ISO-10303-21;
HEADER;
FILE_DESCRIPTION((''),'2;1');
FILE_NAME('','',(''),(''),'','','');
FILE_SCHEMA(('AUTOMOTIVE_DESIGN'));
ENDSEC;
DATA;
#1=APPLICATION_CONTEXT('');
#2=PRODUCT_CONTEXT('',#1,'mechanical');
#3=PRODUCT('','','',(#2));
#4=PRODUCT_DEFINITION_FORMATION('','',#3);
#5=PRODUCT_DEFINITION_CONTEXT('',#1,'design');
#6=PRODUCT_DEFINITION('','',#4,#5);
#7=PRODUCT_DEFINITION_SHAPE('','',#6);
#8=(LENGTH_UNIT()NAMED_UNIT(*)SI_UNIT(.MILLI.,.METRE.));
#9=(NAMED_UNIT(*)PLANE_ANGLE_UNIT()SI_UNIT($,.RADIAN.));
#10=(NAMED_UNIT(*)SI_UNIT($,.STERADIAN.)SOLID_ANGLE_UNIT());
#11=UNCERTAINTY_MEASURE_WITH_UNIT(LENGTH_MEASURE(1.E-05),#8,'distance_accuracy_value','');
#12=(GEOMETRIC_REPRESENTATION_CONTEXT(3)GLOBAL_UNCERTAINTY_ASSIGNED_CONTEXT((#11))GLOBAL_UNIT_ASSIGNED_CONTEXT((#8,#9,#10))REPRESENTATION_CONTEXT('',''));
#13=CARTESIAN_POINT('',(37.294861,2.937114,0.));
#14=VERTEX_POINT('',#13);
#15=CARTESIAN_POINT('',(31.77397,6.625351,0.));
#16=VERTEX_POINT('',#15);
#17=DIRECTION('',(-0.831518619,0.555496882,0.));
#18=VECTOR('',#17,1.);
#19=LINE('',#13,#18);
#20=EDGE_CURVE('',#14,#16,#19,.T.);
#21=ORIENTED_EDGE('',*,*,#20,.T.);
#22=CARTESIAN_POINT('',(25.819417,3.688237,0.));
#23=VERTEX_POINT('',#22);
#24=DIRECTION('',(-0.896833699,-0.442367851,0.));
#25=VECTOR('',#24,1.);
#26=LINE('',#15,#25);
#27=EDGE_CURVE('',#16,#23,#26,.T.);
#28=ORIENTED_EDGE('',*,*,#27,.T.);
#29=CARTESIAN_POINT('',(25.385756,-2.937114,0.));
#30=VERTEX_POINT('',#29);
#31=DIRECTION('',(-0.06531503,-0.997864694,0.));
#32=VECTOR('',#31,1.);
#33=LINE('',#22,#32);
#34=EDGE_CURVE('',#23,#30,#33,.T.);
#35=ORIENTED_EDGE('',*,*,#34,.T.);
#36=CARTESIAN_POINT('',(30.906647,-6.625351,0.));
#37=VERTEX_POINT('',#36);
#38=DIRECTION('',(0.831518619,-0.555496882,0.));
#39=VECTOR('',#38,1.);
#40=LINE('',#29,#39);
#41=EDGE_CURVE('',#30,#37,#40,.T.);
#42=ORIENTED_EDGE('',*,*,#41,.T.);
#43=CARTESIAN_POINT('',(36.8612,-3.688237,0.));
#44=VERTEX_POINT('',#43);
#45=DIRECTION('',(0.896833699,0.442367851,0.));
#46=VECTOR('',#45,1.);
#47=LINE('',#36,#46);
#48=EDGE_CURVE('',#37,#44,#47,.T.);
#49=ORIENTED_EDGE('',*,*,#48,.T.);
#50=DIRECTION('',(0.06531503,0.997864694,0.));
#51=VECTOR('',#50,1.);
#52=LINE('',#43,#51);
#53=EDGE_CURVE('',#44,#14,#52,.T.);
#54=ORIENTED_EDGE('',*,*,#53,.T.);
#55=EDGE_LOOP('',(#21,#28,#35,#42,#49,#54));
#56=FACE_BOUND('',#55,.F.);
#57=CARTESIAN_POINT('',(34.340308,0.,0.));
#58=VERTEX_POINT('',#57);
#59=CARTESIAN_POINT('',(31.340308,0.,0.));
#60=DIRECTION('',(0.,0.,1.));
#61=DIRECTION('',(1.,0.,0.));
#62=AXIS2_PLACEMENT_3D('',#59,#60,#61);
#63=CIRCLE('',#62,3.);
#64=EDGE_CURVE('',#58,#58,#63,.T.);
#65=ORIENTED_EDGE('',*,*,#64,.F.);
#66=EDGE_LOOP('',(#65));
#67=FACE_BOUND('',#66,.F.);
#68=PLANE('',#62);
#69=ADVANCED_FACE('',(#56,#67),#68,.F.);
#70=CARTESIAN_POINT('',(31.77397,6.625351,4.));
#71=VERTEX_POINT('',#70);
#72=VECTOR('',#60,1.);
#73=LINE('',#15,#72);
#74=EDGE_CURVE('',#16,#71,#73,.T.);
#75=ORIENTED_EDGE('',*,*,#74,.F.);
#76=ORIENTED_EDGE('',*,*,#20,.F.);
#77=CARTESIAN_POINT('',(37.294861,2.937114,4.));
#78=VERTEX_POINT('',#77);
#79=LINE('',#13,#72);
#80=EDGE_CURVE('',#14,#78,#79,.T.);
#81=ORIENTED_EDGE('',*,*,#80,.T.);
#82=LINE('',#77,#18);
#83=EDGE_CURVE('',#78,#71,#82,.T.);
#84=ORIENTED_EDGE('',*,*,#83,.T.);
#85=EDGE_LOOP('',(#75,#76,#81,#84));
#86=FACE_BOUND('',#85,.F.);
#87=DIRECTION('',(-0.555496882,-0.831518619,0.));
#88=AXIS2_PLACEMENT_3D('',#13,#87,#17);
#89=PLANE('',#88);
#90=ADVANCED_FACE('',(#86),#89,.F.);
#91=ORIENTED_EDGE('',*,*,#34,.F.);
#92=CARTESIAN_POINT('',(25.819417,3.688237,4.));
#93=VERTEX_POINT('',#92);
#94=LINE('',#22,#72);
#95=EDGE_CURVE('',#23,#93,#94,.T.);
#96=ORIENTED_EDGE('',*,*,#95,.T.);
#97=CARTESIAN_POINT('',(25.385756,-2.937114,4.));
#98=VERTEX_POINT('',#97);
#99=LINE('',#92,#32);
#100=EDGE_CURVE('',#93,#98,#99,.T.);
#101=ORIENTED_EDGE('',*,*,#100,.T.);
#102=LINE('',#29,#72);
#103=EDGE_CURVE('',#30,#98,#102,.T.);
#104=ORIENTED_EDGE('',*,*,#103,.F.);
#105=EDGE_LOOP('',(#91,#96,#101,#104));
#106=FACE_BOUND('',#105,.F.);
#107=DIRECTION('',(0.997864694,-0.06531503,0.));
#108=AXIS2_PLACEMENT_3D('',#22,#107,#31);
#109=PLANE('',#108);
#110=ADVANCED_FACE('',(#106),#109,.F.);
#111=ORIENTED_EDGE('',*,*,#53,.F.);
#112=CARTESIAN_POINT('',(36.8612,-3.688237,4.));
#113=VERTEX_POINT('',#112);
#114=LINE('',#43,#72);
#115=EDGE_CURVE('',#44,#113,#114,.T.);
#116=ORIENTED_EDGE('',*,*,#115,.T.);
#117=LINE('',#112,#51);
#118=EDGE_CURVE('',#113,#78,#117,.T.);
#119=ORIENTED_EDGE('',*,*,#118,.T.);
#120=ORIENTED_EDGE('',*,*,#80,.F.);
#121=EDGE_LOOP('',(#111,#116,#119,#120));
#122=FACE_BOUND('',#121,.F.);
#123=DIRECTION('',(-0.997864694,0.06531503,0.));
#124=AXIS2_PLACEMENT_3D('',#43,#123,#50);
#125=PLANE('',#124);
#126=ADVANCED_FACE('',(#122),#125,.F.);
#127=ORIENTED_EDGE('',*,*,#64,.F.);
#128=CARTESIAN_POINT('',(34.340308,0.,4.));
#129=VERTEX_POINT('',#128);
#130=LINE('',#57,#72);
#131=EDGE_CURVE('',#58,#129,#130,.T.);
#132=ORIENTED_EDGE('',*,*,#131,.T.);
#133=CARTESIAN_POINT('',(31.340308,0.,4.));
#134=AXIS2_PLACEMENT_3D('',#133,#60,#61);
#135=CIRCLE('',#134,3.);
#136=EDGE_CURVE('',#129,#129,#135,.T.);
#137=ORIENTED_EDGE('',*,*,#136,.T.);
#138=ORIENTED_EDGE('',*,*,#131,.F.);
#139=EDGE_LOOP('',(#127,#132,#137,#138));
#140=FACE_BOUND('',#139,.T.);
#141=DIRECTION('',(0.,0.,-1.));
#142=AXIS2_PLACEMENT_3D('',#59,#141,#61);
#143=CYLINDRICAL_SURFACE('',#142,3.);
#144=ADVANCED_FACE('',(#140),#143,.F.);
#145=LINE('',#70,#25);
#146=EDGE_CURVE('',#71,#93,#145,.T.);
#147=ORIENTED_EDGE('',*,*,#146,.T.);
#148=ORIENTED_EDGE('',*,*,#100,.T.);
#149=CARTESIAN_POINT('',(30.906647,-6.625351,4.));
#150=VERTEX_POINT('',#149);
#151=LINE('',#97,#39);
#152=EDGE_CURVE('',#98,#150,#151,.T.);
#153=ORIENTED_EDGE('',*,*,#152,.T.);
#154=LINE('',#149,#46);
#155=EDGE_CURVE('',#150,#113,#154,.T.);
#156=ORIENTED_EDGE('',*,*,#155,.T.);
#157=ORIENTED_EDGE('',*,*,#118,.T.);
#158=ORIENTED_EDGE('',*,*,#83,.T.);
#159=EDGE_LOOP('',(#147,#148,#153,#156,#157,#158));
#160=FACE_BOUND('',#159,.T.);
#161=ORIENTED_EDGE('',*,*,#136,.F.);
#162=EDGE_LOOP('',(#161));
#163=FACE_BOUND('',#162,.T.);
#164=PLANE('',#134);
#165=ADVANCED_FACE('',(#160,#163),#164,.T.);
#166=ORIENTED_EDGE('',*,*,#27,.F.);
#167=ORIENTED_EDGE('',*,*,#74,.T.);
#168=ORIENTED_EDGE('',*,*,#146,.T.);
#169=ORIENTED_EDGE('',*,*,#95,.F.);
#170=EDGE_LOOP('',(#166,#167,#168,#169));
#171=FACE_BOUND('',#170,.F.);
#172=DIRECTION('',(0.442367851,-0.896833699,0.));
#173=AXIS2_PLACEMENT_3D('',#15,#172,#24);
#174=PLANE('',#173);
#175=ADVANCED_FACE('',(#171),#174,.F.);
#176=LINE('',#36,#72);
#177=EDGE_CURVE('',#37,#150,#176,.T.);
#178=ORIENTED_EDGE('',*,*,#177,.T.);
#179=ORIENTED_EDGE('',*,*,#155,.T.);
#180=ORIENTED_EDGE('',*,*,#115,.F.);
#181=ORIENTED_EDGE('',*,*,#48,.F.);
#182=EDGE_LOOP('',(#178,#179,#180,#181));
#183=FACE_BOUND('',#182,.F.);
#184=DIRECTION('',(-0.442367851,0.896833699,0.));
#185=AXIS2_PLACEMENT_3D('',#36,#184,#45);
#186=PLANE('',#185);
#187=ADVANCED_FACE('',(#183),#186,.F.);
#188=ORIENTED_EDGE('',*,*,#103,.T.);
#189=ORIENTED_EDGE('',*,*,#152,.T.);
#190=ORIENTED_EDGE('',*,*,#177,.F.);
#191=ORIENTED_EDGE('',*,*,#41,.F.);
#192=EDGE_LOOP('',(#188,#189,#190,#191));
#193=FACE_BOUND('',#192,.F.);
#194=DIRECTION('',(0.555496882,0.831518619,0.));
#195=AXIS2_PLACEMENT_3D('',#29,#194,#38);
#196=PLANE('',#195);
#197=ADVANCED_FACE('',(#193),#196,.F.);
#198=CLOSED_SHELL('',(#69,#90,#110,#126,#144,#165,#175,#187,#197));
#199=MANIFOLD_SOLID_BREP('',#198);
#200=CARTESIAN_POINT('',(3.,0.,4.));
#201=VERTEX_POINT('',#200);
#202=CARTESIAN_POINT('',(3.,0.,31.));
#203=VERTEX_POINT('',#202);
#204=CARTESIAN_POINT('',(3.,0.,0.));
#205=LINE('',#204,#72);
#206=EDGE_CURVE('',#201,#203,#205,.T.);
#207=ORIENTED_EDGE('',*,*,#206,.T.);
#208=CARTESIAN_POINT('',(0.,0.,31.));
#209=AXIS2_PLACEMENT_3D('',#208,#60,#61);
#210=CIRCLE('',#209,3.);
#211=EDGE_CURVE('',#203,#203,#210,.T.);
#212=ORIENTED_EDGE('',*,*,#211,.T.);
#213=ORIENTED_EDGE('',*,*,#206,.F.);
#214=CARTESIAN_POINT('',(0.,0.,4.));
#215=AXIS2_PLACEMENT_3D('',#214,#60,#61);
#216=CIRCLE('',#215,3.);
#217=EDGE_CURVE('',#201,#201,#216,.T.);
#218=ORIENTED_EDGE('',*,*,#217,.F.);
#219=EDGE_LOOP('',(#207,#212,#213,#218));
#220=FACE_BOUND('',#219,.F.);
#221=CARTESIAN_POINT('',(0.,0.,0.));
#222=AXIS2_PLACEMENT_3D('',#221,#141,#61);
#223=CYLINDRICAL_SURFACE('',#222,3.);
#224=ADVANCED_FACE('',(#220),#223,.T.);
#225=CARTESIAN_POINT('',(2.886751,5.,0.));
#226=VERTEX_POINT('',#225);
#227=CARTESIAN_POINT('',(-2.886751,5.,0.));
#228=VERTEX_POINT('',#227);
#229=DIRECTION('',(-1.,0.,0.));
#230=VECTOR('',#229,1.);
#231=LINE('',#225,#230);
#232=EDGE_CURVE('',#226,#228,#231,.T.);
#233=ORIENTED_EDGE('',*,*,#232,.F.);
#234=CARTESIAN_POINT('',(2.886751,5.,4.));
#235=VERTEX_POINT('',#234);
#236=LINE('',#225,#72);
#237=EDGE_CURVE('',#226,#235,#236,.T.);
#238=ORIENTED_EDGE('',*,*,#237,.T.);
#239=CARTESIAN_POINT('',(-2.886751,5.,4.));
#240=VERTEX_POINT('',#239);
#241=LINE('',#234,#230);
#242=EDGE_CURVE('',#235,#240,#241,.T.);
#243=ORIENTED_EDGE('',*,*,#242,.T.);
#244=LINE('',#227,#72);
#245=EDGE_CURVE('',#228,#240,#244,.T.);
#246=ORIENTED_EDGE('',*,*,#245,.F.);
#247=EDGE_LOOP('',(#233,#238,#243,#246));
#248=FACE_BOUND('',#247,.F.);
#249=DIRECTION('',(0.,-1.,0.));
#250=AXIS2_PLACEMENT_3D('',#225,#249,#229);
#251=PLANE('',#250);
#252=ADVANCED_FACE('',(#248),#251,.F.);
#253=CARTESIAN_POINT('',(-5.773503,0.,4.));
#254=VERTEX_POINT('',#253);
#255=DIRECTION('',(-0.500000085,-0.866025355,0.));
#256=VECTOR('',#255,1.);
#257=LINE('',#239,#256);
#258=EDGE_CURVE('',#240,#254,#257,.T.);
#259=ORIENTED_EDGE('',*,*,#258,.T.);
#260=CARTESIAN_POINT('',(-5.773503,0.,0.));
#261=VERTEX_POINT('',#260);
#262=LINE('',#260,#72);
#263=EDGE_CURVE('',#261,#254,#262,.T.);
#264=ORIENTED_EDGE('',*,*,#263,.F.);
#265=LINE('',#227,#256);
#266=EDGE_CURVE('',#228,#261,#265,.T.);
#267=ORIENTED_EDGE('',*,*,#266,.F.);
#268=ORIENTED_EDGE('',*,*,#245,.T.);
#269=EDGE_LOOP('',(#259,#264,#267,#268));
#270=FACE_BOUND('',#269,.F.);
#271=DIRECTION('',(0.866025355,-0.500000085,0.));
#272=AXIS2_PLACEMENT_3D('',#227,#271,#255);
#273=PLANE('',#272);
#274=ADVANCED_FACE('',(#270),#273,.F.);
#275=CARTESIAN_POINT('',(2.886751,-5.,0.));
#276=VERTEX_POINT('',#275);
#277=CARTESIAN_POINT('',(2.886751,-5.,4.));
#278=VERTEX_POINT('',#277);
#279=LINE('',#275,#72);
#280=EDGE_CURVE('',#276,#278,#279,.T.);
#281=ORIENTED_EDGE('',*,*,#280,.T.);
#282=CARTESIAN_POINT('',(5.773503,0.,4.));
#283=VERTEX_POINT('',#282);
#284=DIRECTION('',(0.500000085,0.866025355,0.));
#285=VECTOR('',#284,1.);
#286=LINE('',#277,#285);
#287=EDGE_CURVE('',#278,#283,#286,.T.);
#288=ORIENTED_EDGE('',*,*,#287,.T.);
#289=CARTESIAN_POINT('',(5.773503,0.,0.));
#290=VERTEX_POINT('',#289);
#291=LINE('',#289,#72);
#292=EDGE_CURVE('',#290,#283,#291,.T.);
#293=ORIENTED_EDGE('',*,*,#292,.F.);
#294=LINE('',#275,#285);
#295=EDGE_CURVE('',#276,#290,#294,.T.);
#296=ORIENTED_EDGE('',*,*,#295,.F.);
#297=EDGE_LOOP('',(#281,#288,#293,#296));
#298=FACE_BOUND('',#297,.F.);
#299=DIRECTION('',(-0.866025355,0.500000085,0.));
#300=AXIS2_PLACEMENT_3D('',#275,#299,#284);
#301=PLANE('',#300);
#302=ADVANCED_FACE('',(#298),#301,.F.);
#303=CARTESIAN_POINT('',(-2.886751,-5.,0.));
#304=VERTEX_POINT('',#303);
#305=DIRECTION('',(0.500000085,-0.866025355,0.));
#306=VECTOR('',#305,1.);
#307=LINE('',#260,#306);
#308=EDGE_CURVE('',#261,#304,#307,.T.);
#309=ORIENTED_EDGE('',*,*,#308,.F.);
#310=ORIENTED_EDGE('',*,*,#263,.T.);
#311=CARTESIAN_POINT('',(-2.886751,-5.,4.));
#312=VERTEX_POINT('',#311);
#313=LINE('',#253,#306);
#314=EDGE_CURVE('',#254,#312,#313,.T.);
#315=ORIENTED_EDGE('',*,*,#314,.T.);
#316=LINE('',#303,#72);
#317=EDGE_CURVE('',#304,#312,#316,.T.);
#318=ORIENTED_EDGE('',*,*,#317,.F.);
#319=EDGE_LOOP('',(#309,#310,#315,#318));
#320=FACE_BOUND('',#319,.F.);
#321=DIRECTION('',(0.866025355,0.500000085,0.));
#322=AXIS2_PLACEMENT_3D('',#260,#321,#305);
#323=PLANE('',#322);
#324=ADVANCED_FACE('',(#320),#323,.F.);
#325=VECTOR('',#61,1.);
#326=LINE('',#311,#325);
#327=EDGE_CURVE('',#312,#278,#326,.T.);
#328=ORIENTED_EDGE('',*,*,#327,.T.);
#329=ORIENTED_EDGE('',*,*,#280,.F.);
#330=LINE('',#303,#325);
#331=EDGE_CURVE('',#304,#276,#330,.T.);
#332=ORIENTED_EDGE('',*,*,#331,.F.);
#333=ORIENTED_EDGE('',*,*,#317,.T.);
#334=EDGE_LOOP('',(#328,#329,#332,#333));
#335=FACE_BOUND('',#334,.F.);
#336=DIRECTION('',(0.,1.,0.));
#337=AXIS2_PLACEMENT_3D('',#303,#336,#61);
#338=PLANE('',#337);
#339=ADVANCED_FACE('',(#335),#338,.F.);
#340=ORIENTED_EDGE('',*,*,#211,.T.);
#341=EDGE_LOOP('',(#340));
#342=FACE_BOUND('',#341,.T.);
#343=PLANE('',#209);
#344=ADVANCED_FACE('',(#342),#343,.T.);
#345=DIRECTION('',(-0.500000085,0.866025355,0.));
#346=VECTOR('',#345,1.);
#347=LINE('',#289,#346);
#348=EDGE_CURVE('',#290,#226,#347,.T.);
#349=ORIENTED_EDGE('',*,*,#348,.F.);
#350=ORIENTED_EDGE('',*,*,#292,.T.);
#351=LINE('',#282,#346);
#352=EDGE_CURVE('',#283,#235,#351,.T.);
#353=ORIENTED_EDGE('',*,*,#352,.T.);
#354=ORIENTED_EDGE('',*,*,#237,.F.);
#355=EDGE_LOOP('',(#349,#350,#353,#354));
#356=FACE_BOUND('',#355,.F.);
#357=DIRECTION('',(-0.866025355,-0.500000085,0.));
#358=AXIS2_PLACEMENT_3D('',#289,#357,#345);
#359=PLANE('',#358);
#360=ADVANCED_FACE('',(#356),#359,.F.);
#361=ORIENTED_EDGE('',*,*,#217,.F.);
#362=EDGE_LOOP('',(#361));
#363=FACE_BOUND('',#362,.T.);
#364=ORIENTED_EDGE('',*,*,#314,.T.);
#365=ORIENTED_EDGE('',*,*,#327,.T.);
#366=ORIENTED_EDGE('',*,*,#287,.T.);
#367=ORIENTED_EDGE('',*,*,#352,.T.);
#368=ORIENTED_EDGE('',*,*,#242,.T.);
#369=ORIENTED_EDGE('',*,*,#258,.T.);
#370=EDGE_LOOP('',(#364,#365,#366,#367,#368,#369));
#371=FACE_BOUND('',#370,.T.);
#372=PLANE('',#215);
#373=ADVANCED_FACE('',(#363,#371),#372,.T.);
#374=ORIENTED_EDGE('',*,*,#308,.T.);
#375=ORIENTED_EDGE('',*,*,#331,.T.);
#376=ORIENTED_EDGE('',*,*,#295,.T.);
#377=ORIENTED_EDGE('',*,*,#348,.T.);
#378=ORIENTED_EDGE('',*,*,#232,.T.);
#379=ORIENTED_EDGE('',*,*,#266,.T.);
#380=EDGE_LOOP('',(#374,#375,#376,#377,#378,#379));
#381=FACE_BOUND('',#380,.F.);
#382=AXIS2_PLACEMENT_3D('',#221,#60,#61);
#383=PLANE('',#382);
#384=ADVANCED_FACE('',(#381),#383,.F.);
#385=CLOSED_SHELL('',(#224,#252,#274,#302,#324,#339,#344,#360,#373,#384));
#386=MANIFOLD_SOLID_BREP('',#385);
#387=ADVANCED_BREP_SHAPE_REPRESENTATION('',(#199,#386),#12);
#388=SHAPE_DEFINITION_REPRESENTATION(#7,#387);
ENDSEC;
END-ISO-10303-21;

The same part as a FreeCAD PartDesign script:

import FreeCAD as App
import Part
import Sketcher
Q = App.Units.Quantity

doc = App.newDocument("Part")
body = doc.addObject("PartDesign::Body", "Body")
body.AllowCompound = True

# Sketch on XY plane
sketch1 = body.newObject("Sketcher::SketchObject", "Sketch")
sketch1.AttachmentSupport = (doc.getObject("XY_Plane"), [""])
sketch1.MapMode = "FlatFace"
sketch1.addGeometry(Part.Circle(App.Vector(0, 0, 0), App.Vector(0, 0, 1), 3), False)
sketch1.addConstraint(Sketcher.Constraint("Coincident", 0, 3, -1, 1))
sketch1.addConstraint(Sketcher.Constraint("Diameter", 0, Q("6 mm")))
pad1 = body.newObject("PartDesign::Pad", "Pad")
pad1.Profile = sketch1
pad1.Length = 31

# Sketch on XY plane
sketch2 = body.newObject("Sketcher::SketchObject", "Sketch001")
sketch2.AttachmentSupport = (doc.getObject("XY_Plane"), [""])
sketch2.MapMode = "FlatFace"
sketch2.addGeometry(Part.LineSegment(App.Vector(2.9, 5, 0), App.Vector(-2.9, 5, 0)), False)
sketch2.addGeometry(Part.LineSegment(App.Vector(-2.9, 5, 0), App.Vector(-5.8, 0, 0)), False)
sketch2.addGeometry(Part.LineSegment(App.Vector(-5.8, 0, 0), App.Vector(-2.9, -5, 0)), False)
sketch2.addGeometry(Part.LineSegment(App.Vector(-2.9, -5, 0), App.Vector(2.9, -5, 0)), False)
sketch2.addGeometry(Part.LineSegment(App.Vector(2.9, -5, 0), App.Vector(5.8, 0, 0)), False)
sketch2.addGeometry(Part.LineSegment(App.Vector(5.8, 0, 0), App.Vector(2.9, 5, 0)), False)
sketch2.addGeometry(Part.Circle(App.Vector(0, 0, 0), App.Vector(0, 0, 1), 3), False)
sketch2.addConstraint(Sketcher.Constraint("Coincident", 0, 2, 1, 1))
sketch2.addConstraint(Sketcher.Constraint("Coincident", 1, 2, 2, 1))
sketch2.addConstraint(Sketcher.Constraint("Coincident", 2, 2, 3, 1))
sketch2.addConstraint(Sketcher.Constraint("Coincident", 3, 2, 4, 1))
sketch2.addConstraint(Sketcher.Constraint("Coincident", 4, 2, 5, 1))
sketch2.addConstraint(Sketcher.Constraint("Coincident", 5, 2, 0, 1))
sketch2.addConstraint(Sketcher.Constraint("Horizontal", 0))
sketch2.addConstraint(Sketcher.Constraint("Horizontal", 3))
sketch2.addConstraint(Sketcher.Constraint("Coincident", 6, 3, -1, 1))
sketch2.addConstraint(Sketcher.Constraint("Symmetric", 0, 2, 3, 2, -1, 1))
sketch2.addConstraint(Sketcher.Constraint("Symmetric", 1, 2, 4, 2, -1, 1))
sketch2.addConstraint(Sketcher.Constraint("PointOnObject", 1, 2, -1))
sketch2.addConstraint(Sketcher.Constraint("Parallel", 2, 5))
sketch2.addConstraint(Sketcher.Constraint("Vertical", 0, 2, 2, 2))
sketch2.addConstraint(Sketcher.Constraint("Diameter", 6, Q("6 mm")))
sketch2.addConstraint(Sketcher.Constraint("Angle", 1, Q("-120.000006 deg")))
sketch2.addConstraint(Sketcher.Constraint("DistanceY", -1, 1, 0, 2, Q("5 mm")))
sketch2.addConstraint(Sketcher.Constraint("DistanceX", 0, 2, 0, 1, Q("5.773502 mm")))
pad2 = body.newObject("PartDesign::Pad", "Pad001")
pad2.Profile = sketch2
pad2.Length = 4

# Sketch on XY plane
sketch3 = body.newObject("Sketcher::SketchObject", "Sketch002")
sketch3.AttachmentSupport = (doc.getObject("XY_Plane"), [""])
sketch3.MapMode = "FlatFace"
sketch3.addGeometry(Part.LineSegment(App.Vector(2.9, 5, 0), App.Vector(-2.9, 5, 0)), False)
sketch3.addGeometry(Part.LineSegment(App.Vector(-2.9, 5, 0), App.Vector(-5.8, 0, 0)), False)
sketch3.addGeometry(Part.LineSegment(App.Vector(-5.8, 0, 0), App.Vector(-2.9, -5, 0)), False)
sketch3.addGeometry(Part.LineSegment(App.Vector(-2.9, -5, 0), App.Vector(2.9, -5, 0)), False)
sketch3.addGeometry(Part.LineSegment(App.Vector(2.9, -5, 0), App.Vector(5.8, 0, 0)), False)
sketch3.addGeometry(Part.LineSegment(App.Vector(5.8, 0, 0), App.Vector(2.9, 5, 0)), False)
sketch3.addGeometry(Part.Circle(App.Vector(0, 0, 0), App.Vector(0, 0, 1), 3), False)
sketch3.addGeometry(Part.LineSegment(App.Vector(37.3, 2.9, 0), App.Vector(31.8, 6.6, 0)), False)
sketch3.addGeometry(Part.LineSegment(App.Vector(31.8, 6.6, 0), App.Vector(25.8, 3.7, 0)), False)
sketch3.addGeometry(Part.LineSegment(App.Vector(25.8, 3.7, 0), App.Vector(25.4, -2.9, 0)), False)
sketch3.addGeometry(Part.LineSegment(App.Vector(25.4, -2.9, 0), App.Vector(30.9, -6.6, 0)), False)
sketch3.addGeometry(Part.LineSegment(App.Vector(30.9, -6.6, 0), App.Vector(36.9, -3.7, 0)), False)
sketch3.addGeometry(Part.LineSegment(App.Vector(36.9, -3.7, 0), App.Vector(37.3, 2.9, 0)), False)
sketch3.addGeometry(Part.Circle(App.Vector(31.3, 0, 0), App.Vector(0, 0, 1), 3), False)
sketch3.addConstraint(Sketcher.Constraint("Coincident", 0, 2, 1, 1))
sketch3.addConstraint(Sketcher.Constraint("Coincident", 1, 2, 2, 1))
sketch3.addConstraint(Sketcher.Constraint("Coincident", 2, 2, 3, 1))
sketch3.addConstraint(Sketcher.Constraint("Coincident", 3, 2, 4, 1))
sketch3.addConstraint(Sketcher.Constraint("Coincident", 4, 2, 5, 1))
sketch3.addConstraint(Sketcher.Constraint("Coincident", 5, 2, 0, 1))
sketch3.addConstraint(Sketcher.Constraint("Coincident", 7, 2, 8, 1))
sketch3.addConstraint(Sketcher.Constraint("Coincident", 8, 2, 9, 1))
sketch3.addConstraint(Sketcher.Constraint("Coincident", 9, 2, 10, 1))
sketch3.addConstraint(Sketcher.Constraint("Coincident", 10, 2, 11, 1))
sketch3.addConstraint(Sketcher.Constraint("Coincident", 11, 2, 12, 1))
sketch3.addConstraint(Sketcher.Constraint("Coincident", 12, 2, 7, 1))
sketch3.addConstraint(Sketcher.Constraint("Horizontal", 0))
sketch3.addConstraint(Sketcher.Constraint("Horizontal", 3))
sketch3.addConstraint(Sketcher.Constraint("Coincident", 6, 3, -1, 1))
sketch3.addConstraint(Sketcher.Constraint("Equal", 6, 13))
sketch3.addConstraint(Sketcher.Constraint("Symmetric", 0, 2, 3, 2, -1, 1))
sketch3.addConstraint(Sketcher.Constraint("Symmetric", 1, 2, 4, 2, -1, 1))
sketch3.addConstraint(Sketcher.Constraint("PointOnObject", 13, 3, -1))
sketch3.addConstraint(Sketcher.Constraint("PointOnObject", 1, 2, -1))
sketch3.addConstraint(Sketcher.Constraint("Parallel", 2, 5))
sketch3.addConstraint(Sketcher.Constraint("Parallel", 7, 10))
sketch3.addConstraint(Sketcher.Constraint("Parallel", 8, 11))
sketch3.addConstraint(Sketcher.Constraint("Parallel", 9, 12))
sketch3.addConstraint(Sketcher.Constraint("Vertical", 0, 2, 2, 2))
sketch3.addConstraint(Sketcher.Constraint("Equal", 7, 8))
sketch3.addConstraint(Sketcher.Constraint("Equal", 8, 9))
sketch3.addConstraint(Sketcher.Constraint("Equal", 9, 10))
sketch3.addConstraint(Sketcher.Constraint("Diameter", 6, Q("6 mm")))
sketch3.addConstraint(Sketcher.Constraint("Angle", 1, Q("-120.000006 deg")))
sketch3.addConstraint(Sketcher.Constraint("DistanceY", -1, 1, 0, 2, Q("5 mm")))
sketch3.addConstraint(Sketcher.Constraint("DistanceX", 0, 2, 0, 1, Q("5.773502 mm")))
sketch3.addConstraint(Sketcher.Constraint("DistanceX", -1, 1, 11, 2, Q("36.8612 mm")))
sketch3.addConstraint(Sketcher.Constraint("Distance", 8, Q("6.639529 mm")))
sketch3.addConstraint(Sketcher.Constraint("DistanceX", -1, 1, 13, 3, Q("31.340308 mm")))
sketch3.addConstraint(Sketcher.Constraint("DistanceX", -1, 1, 7, 2, Q("31.77397 mm")))
sketch3.addConstraint(Sketcher.Constraint("DistanceY", -1, 1, 7, 2, Q("6.625351 mm")))
sketch3.addConstraint(Sketcher.Constraint("DistanceY", 10, 2, -1, 1, Q("6.625351 mm")))
sketch3.addConstraint(Sketcher.Constraint("DistanceX", -1, 1, 12, 2, Q("37.294861 mm")))
pad3 = body.newObject("PartDesign::Pad", "Pad002")
pad3.Profile = sketch3
pad3.Length = 4

doc.recompute()
